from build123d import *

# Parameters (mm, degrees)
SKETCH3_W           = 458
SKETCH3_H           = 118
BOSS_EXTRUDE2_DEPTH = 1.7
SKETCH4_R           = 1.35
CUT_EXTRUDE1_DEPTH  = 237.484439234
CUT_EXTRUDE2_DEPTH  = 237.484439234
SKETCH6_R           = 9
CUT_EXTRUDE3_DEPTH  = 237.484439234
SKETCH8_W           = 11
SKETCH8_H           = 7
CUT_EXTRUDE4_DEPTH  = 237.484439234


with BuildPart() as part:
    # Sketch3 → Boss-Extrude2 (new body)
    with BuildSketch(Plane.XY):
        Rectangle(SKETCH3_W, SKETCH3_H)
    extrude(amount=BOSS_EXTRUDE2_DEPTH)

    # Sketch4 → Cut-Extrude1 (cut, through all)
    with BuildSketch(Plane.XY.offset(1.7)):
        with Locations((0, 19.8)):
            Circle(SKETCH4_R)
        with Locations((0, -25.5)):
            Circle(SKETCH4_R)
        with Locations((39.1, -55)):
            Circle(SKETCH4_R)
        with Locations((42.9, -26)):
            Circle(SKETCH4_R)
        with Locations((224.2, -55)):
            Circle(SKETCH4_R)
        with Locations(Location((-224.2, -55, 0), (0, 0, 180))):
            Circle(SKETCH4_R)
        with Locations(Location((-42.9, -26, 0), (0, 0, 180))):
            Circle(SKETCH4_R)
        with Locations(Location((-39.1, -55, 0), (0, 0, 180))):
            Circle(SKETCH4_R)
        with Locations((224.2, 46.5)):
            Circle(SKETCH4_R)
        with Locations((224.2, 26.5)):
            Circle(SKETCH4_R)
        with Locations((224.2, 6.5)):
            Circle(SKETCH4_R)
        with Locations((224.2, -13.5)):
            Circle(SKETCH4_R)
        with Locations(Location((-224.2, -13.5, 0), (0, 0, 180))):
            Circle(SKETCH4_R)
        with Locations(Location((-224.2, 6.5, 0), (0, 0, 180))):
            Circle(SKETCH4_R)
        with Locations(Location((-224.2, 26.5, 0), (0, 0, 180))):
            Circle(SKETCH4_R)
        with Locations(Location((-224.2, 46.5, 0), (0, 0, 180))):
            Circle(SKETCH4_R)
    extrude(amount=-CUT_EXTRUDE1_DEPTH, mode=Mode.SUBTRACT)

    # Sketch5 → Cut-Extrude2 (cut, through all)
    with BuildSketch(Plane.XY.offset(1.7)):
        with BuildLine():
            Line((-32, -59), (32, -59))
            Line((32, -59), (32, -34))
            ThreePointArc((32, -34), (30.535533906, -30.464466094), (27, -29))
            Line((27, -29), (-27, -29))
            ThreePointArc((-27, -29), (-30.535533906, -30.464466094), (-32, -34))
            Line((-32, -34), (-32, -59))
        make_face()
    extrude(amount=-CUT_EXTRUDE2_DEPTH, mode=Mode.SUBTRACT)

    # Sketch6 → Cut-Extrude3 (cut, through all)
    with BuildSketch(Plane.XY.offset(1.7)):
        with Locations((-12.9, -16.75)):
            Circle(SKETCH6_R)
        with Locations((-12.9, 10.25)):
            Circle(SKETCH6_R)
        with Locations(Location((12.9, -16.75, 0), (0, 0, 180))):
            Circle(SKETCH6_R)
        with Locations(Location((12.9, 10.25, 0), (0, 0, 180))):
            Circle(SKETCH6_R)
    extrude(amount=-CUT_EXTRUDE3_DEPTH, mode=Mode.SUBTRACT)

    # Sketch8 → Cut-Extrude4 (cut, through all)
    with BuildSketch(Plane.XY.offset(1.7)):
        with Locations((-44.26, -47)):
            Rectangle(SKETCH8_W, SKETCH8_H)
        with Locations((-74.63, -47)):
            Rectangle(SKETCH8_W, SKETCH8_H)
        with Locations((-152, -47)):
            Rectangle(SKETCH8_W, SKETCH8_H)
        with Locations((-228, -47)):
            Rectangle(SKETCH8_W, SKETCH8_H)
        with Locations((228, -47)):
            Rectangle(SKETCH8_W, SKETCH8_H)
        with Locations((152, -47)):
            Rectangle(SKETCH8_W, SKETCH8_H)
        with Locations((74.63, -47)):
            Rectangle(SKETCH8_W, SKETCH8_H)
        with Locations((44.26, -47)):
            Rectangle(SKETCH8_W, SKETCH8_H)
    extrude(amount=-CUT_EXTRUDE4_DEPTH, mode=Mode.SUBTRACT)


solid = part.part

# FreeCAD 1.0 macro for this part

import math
import FreeCAD as App
import Part
import Sketcher
Q = App.Units.Quantity

doc = App.newDocument("Part")
params = doc.addObject("Spreadsheet::Sheet", "Params")
for row, (alias, value) in enumerate([
    ("sketch1_width", "458 mm"),
    ("sketch1_height", "118 mm"),
    ("pad1_length", "1.7 mm"),
    ("sketch2_diameter", "2.7 mm"),
    ("sketch3_radius", "5 mm"),
    ("sketch3_width", "64 mm"),
    ("sketch3_height", "25 mm"),
    ("sketch4_diameter", "18 mm"),
    ("sketch5_width", "11 mm"),
    ("sketch5_height", "7 mm"),
], start=1):
    params.set(f"A{row}", alias)
    params.set(f"B{row}", "=" + value)
    params.setAlias(f"B{row}", alias)

body = doc.addObject("PartDesign::Body", "Body")

sketch1 = doc.addObject("Sketcher::SketchObject", "Sketch")
body.addObject(sketch1)
sketch1.AttachmentSupport = (doc.XY_Plane, [""])
sketch1.MapMode = "FlatFace"
sketch1.addGeometry([
    Part.LineSegment(App.Vector(-229, 59, 0), App.Vector(-229, -59, 0)),
    Part.LineSegment(App.Vector(-229, -59, 0), App.Vector(229, -59, 0)),
    Part.LineSegment(App.Vector(229, -59, 0), App.Vector(229, 59, 0)),
    Part.LineSegment(App.Vector(229, 59, 0), App.Vector(-229, 59, 0)),
], False)
sketch1.addConstraint([
    Sketcher.Constraint("Coincident", 0, 2, 1, 1),
    Sketcher.Constraint("Coincident", 1, 2, 2, 1),
    Sketcher.Constraint("Coincident", 2, 2, 3, 1),
    Sketcher.Constraint("Coincident", 3, 2, 0, 1),
    Sketcher.Constraint("Vertical", 0),
    Sketcher.Constraint("Horizontal", 1),
    Sketcher.Constraint("Vertical", 2),
    Sketcher.Constraint("Horizontal", 3),
    Sketcher.Constraint("Symmetric", 0, 2, 2, 2, -1, 1),
    Sketcher.Constraint("DistanceX", 1, 1, 1, 2, Q("458 mm")),
    Sketcher.Constraint("DistanceY", 0, 2, 0, 1, Q("118 mm")),
])
sketch1.setExpression("Constraints[9]", "Params.sketch1_width")
sketch1.setExpression("Constraints[10]", "Params.sketch1_height")
pad1 = doc.addObject("PartDesign::Pad", "Pad")
body.addObject(pad1)
pad1.Profile = sketch1
pad1.setExpression("Length", "Params.pad1_length")

sketch2 = doc.addObject("Sketcher::SketchObject", "Sketch001")
body.addObject(sketch2)
sketch2.AttachmentSupport = (doc.XY_Plane, [""])
sketch2.MapMode = "FlatFace"
sketch2.AttachmentOffset = App.Placement(App.Vector(0, 0, 1.7), App.Rotation())
sketch2.addGeometry([
    Part.Circle(App.Vector(0, 19.8, 0), App.Vector(0, 0, 1), 1.4),
    Part.Circle(App.Vector(0, -25.5, 0), App.Vector(0, 0, 1), 1.4),
    Part.Circle(App.Vector(39.1, -55, 0), App.Vector(0, 0, 1), 1.4),
    Part.Circle(App.Vector(42.9, -26, 0), App.Vector(0, 0, 1), 1.4),
    Part.Circle(App.Vector(224.2, -55, 0), App.Vector(0, 0, 1), 1.4),
    Part.Circle(App.Vector(-224.2, -55, 0), App.Vector(0, 0, 1), 1.4),
    Part.Circle(App.Vector(-42.9, -26, 0), App.Vector(0, 0, 1), 1.4),
    Part.Circle(App.Vector(-39.1, -55, 0), App.Vector(0, 0, 1), 1.4),
    Part.Circle(App.Vector(224.2, 46.5, 0), App.Vector(0, 0, 1), 1.4),
    Part.Circle(App.Vector(224.2, 26.5, 0), App.Vector(0, 0, 1), 1.4),
    Part.Circle(App.Vector(224.2, 6.5, 0), App.Vector(0, 0, 1), 1.4),
    Part.Circle(App.Vector(224.2, -13.5, 0), App.Vector(0, 0, 1), 1.4),
    Part.Circle(App.Vector(-224.2, -13.5, 0), App.Vector(0, 0, 1), 1.4),
    Part.Circle(App.Vector(-224.2, 6.5, 0), App.Vector(0, 0, 1), 1.4),
    Part.Circle(App.Vector(-224.2, 26.5, 0), App.Vector(0, 0, 1), 1.4),
    Part.Circle(App.Vector(-224.2, 46.5, 0), App.Vector(0, 0, 1), 1.4),
], False)
sketch2.addConstraint([
    Sketcher.Constraint("Equal", 0, 1),
    Sketcher.Constraint("Equal", 1, 2),
    Sketcher.Constraint("Equal", 2, 3),
    Sketcher.Constraint("Equal", 3, 4),
    Sketcher.Constraint("Equal", 4, 5),
    Sketcher.Constraint("Equal", 5, 6),
    Sketcher.Constraint("Equal", 6, 7),
    Sketcher.Constraint("Equal", 7, 8),
    Sketcher.Constraint("Equal", 8, 9),
    Sketcher.Constraint("Equal", 9, 10),
    Sketcher.Constraint("Equal", 10, 11),
    Sketcher.Constraint("Equal", 11, 12),
    Sketcher.Constraint("Equal", 12, 13),
    Sketcher.Constraint("Equal", 13, 14),
    Sketcher.Constraint("Equal", 14, 15),
    Sketcher.Constraint("Symmetric", 4, 3, 5, 3, -2),
    Sketcher.Constraint("Symmetric", 3, 3, 6, 3, -2),
    Sketcher.Constraint("Symmetric", 2, 3, 7, 3, -2),
    Sketcher.Constraint("Symmetric", 11, 3, 12, 3, -2),
    Sketcher.Constraint("Symmetric", 10, 3, 13, 3, -2),
    Sketcher.Constraint("Symmetric", 9, 3, 14, 3, -2),
    Sketcher.Constraint("Symmetric", 8, 3, 15, 3, -2),
    Sketcher.Constraint("PointOnObject", 0, 3, -2),
    Sketcher.Constraint("PointOnObject", 1, 3, -2),
    Sketcher.Constraint("Horizontal", 2, 3, 4, 3),
    Sketcher.Constraint("Vertical", 4, 3, 8, 3),
    Sketcher.Constraint("Vertical", 8, 3, 9, 3),
    Sketcher.Constraint("Vertical", 9, 3, 10, 3),
    Sketcher.Constraint("Vertical", 10, 3, 11, 3),
    Sketcher.Constraint("Diameter", 0, Q("2.7 mm")),
    Sketcher.Constraint("DistanceY", 2, 3, -1, 1, Q("55 mm")),
    Sketcher.Constraint("DistanceY", 3, 3, -1, 1, Q("26 mm")),
    Sketcher.Constraint("DistanceX", 6, 3, 2, 3, Q("82 mm")),
    Sketcher.Constraint("DistanceY", 1, 3, 8, 3, Q("72 mm")),
    Sketcher.Constraint("DistanceY", 9, 3, 8, 3, Q("20 mm")),
    Sketcher.Constraint("DistanceY", 10, 3, 9, 3, Q("20 mm")),
    Sketcher.Constraint("DistanceY", 11, 3, 10, 3, Q("20 mm")),
    Sketcher.Constraint("DistanceY", -1, 1, 0, 3, Q("19.8 mm")),
    Sketcher.Constraint("DistanceY", 1, 3, -1, 1, Q("25.5 mm")),
    Sketcher.Constraint("DistanceX", -1, 1, 2, 3, Q("39.1 mm")),
    Sketcher.Constraint("DistanceX", -1, 1, 4, 3, Q("224.2 mm")),
])
sketch2.setExpression("Constraints[29]", "Params.sketch2_diameter")
pocket1 = doc.addObject("PartDesign::Pocket", "Pocket")
body.addObject(pocket1)
pocket1.Profile = sketch2
pocket1.Type = "ThroughAll"

sketch3 = doc.addObject("Sketcher::SketchObject", "Sketch002")
body.addObject(sketch3)
sketch3.AttachmentSupport = (doc.XY_Plane, [""])
sketch3.MapMode = "FlatFace"
sketch3.AttachmentOffset = App.Placement(App.Vector(0, 0, 1.7), App.Rotation())
sketch3.addGeometry([
    Part.LineSegment(App.Vector(-32, -59, 0), App.Vector(32, -59, 0)),
    Part.LineSegment(App.Vector(32, -59, 0), App.Vector(32, -34, 0)),
    Part.ArcOfCircle(Part.Circle(App.Vector(27, -34, 0), App.Vector(0, 0, 1), 5), math.radians(0), math.radians(90)),
    Part.LineSegment(App.Vector(27, -29, 0), App.Vector(-27, -29, 0)),
    Part.ArcOfCircle(Part.Circle(App.Vector(-27, -34, 0), App.Vector(0, 0, 1), 5), math.radians(90), math.radians(180)),
    Part.LineSegment(App.Vector(-32, -34, 0), App.Vector(-32, -59, 0)),
], False)
sketch3.addConstraint([
    Sketcher.Constraint("Coincident", 0, 2, 1, 1),
    Sketcher.Constraint("Tangent", 1, 2, 2, 1),
    Sketcher.Constraint("Tangent", 2, 2, 3, 1),
    Sketcher.Constraint("Tangent", 3, 2, 4, 1),
    Sketcher.Constraint("Tangent", 4, 2, 5, 1),
    Sketcher.Constraint("Coincident", 5, 2, 0, 1),
    Sketcher.Constraint("Horizontal", 0),
    Sketcher.Constraint("Vertical", 1),
    Sketcher.Constraint("Horizontal", 3),
    Sketcher.Constraint("Vertical", 5),
    Sketcher.Constraint("Equal", 2, 4),
    Sketcher.Constraint("Radius", 2, Q("5 mm")),
    Sketcher.Constraint("DistanceX", 0, 1, 0, 2, Q("64 mm")),
    Sketcher.Constraint("DistanceY", 1, 1, 1, 2, Q("25 mm")),
    Sketcher.Constraint("DistanceX", -1, 1, 2, 3, Q("27 mm")),
    Sketcher.Constraint("DistanceY", 2, 3, -1, 1, Q("34 mm")),
])
sketch3.setExpression("Constraints[11]", "Params.sketch3_radius")
sketch3.setExpression("Constraints[12]", "Params.sketch3_width")
sketch3.setExpression("Constraints[13]", "Params.sketch3_height")
pocket2 = doc.addObject("PartDesign::Pocket", "Pocket001")
body.addObject(pocket2)
pocket2.Profile = sketch3
pocket2.Type = "ThroughAll"

sketch4 = doc.addObject("Sketcher::SketchObject", "Sketch003")
body.addObject(sketch4)
sketch4.AttachmentSupport = (doc.XY_Plane, [""])
sketch4.MapMode = "FlatFace"
sketch4.AttachmentOffset = App.Placement(App.Vector(0, 0, 1.7), App.Rotation())
sketch4.addGeometry([
    Part.Circle(App.Vector(-13, -17, 0), App.Vector(0, 0, 1), 9),
    Part.Circle(App.Vector(-13, 10, 0), App.Vector(0, 0, 1), 9),
    Part.Circle(App.Vector(13, -17, 0), App.Vector(0, 0, 1), 9),
    Part.Circle(App.Vector(13, 10, 0), App.Vector(0, 0, 1), 9),
], False)
sketch4.addConstraint([
    Sketcher.Constraint("Equal", 0, 1),
    Sketcher.Constraint("Equal", 1, 2),
    Sketcher.Constraint("Equal", 2, 3),
    Sketcher.Constraint("Symmetric", 0, 3, 2, 3, -2),
    Sketcher.Constraint("Symmetric", 1, 3, 3, 3, -2),
    Sketcher.Constraint("Vertical", 0, 3, 1, 3),
    Sketcher.Constraint("Diameter", 0, Q("18 mm")),
    Sketcher.Constraint("DistanceY", 0, 3, 1, 3, Q("27 mm")),
    Sketcher.Constraint("DistanceX", 0, 3, -1, 1, Q("12.9 mm")),
    Sketcher.Constraint("DistanceY", 0, 3, -1, 1, Q("16.75 mm")),
])
sketch4.setExpression("Constraints[6]", "Params.sketch4_diameter")
pocket3 = doc.addObject("PartDesign::Pocket", "Pocket002")
body.addObject(pocket3)
pocket3.Profile = sketch4
pocket3.Type = "ThroughAll"

sketch5 = doc.addObject("Sketcher::SketchObject", "Sketch004")
body.addObject(sketch5)
sketch5.AttachmentSupport = (doc.XY_Plane, [""])
sketch5.MapMode = "FlatFace"
sketch5.AttachmentOffset = App.Placement(App.Vector(0, 0, 1.7), App.Rotation())
sketch5.addGeometry([
    Part.LineSegment(App.Vector(-50, -44, 0), App.Vector(-50, -50, 0)),
    Part.LineSegment(App.Vector(-50, -50, 0), App.Vector(-39, -50, 0)),
    Part.LineSegment(App.Vector(-39, -50, 0), App.Vector(-39, -44, 0)),
    Part.LineSegment(App.Vector(-39, -44, 0), App.Vector(-50, -44, 0)),
    Part.LineSegment(App.Vector(-80, -44, 0), App.Vector(-80, -50, 0)),
    Part.LineSegment(App.Vector(-80, -50, 0), App.Vector(-69, -50, 0)),
    Part.LineSegment(App.Vector(-69, -50, 0), App.Vector(-69, -44, 0)),
    Part.LineSegment(App.Vector(-69, -44, 0), App.Vector(-80, -44, 0)),
    Part.LineSegment(App.Vector(-158, -44, 0), App.Vector(-158, -50, 0)),
    Part.LineSegment(App.Vector(-158, -50, 0), App.Vector(-146, -50, 0)),
    Part.LineSegment(App.Vector(-146, -50, 0), App.Vector(-146, -44, 0)),
    Part.LineSegment(App.Vector(-146, -44, 0), App.Vector(-158, -44, 0)),
    Part.LineSegment(App.Vector(-234, -44, 0), App.Vector(-234, -50, 0)),
    Part.LineSegment(App.Vector(-234, -50, 0), App.Vector(-222, -50, 0)),
    Part.LineSegment(App.Vector(-222, -50, 0), App.Vector(-222, -44, 0)),
    Part.LineSegment(App.Vector(-222, -44, 0), App.Vector(-234, -44, 0)),
    Part.LineSegment(App.Vector(222, -44, 0), App.Vector(222, -50, 0)),
    Part.LineSegment(App.Vector(222, -50, 0), App.Vector(234, -50, 0)),
    Part.LineSegment(App.Vector(234, -50, 0), App.Vector(234, -44, 0)),
    Part.LineSegment(App.Vector(234, -44, 0), App.Vector(222, -44, 0)),
    Part.LineSegment(App.Vector(146, -44, 0), App.Vector(146, -50, 0)),
    Part.LineSegment(App.Vector(146, -50, 0), App.Vector(158, -50, 0)),
    Part.LineSegment(App.Vector(158, -50, 0), App.Vector(158, -44, 0)),
    Part.LineSegment(App.Vector(158, -44, 0), App.Vector(146, -44, 0)),
    Part.LineSegment(App.Vector(69, -44, 0), App.Vector(69, -50, 0)),
    Part.LineSegment(App.Vector(69, -50, 0), App.Vector(80, -50, 0)),
    Part.LineSegment(App.Vector(80, -50, 0), App.Vector(80, -44, 0)),
    Part.LineSegment(App.Vector(80, -44, 0), App.Vector(69, -44, 0)),
    Part.LineSegment(App.Vector(39, -44, 0), App.Vector(39, -50, 0)),
    Part.LineSegment(App.Vector(39, -50, 0), App.Vector(50, -50, 0)),
    Part.LineSegment(App.Vector(50, -50, 0), App.Vector(50, -44, 0)),
    Part.LineSegment(App.Vector(50, -44, 0), App.Vector(39, -44, 0)),
], False)
sketch5.addConstraint([
    Sketcher.Constraint("Coincident", 0, 2, 1, 1),
    Sketcher.Constraint("Coincident", 1, 2, 2, 1),
    Sketcher.Constraint("Coincident", 2, 2, 3, 1),
    Sketcher.Constraint("Coincident", 3, 2, 0, 1),
    Sketcher.Constraint("Coincident", 4, 2, 5, 1),
    Sketcher.Constraint("Coincident", 5, 2, 6, 1),
    Sketcher.Constraint("Coincident", 6, 2, 7, 1),
    Sketcher.Constraint("Coincident", 7, 2, 4, 1),
    Sketcher.Constraint("Coincident", 8, 2, 9, 1),
    Sketcher.Constraint("Coincident", 9, 2, 10, 1),
    Sketcher.Constraint("Coincident", 10, 2, 11, 1),
    Sketcher.Constraint("Coincident", 11, 2, 8, 1),
    Sketcher.Constraint("Coincident", 12, 2, 13, 1),
    Sketcher.Constraint("Coincident", 13, 2, 14, 1),
    Sketcher.Constraint("Coincident", 14, 2, 15, 1),
    Sketcher.Constraint("Coincident", 15, 2, 12, 1),
    Sketcher.Constraint("Coincident", 16, 2, 17, 1),
    Sketcher.Constraint("Coincident", 17, 2, 18, 1),
    Sketcher.Constraint("Coincident", 18, 2, 19, 1),
    Sketcher.Constraint("Coincident", 19, 2, 16, 1),
    Sketcher.Constraint("Coincident", 20, 2, 21, 1),
    Sketcher.Constraint("Coincident", 21, 2, 22, 1),
    Sketcher.Constraint("Coincident", 22, 2, 23, 1),
    Sketcher.Constraint("Coincident", 23, 2, 20, 1),
    Sketcher.Constraint("Coincident", 24, 2, 25, 1),
    Sketcher.Constraint("Coincident", 25, 2, 26, 1),
    Sketcher.Constraint("Coincident", 26, 2, 27, 1),
    Sketcher.Constraint("Coincident", 27, 2, 24, 1),
    Sketcher.Constraint("Coincident", 28, 2, 29, 1),
    Sketcher.Constraint("Coincident", 29, 2, 30, 1),
    Sketcher.Constraint("Coincident", 30, 2, 31, 1),
    Sketcher.Constraint("Coincident", 31, 2, 28, 1),
    Sketcher.Constraint("Vertical", 0),
    Sketcher.Constraint("Horizontal", 1),
    Sketcher.Constraint("Vertical", 2),
    Sketcher.Constraint("Horizontal", 3),
    Sketcher.Constraint("Vertical", 4),
    Sketcher.Constraint("Horizontal", 5),
    Sketcher.Constraint("Vertical", 6),
    Sketcher.Constraint("Horizontal", 7),
    Sketcher.Constraint("Vertical", 8),
    Sketcher.Constraint("Horizontal", 9),
    Sketcher.Constraint("Vertical", 10),
    Sketcher.Constraint("Horizontal", 11),
    Sketcher.Constraint("Vertical", 12),
    Sketcher.Constraint("Horizontal", 13),
    Sketcher.Constraint("Vertical", 14),
    Sketcher.Constraint("Horizontal", 15),
    Sketcher.Constraint("Vertical", 16),
    Sketcher.Constraint("Horizontal", 17),
    Sketcher.Constraint("Vertical", 18),
    Sketcher.Constraint("Horizontal", 19),
    Sketcher.Constraint("Vertical", 20),
    Sketcher.Constraint("Horizontal", 21),
    Sketcher.Constraint("Vertical", 22),
    Sketcher.Constraint("Horizontal", 23),
    Sketcher.Constraint("Vertical", 24),
    Sketcher.Constraint("Horizontal", 25),
    Sketcher.Constraint("Vertical", 26),
    Sketcher.Constraint("Horizontal", 27),
    Sketcher.Constraint("Vertical", 28),
    Sketcher.Constraint("Horizontal", 29),
    Sketcher.Constraint("Vertical", 30),
    Sketcher.Constraint("Horizontal", 31),
    Sketcher.Constraint("Symmetric", 13, 2, 16, 2, -2),
    Sketcher.Constraint("Symmetric", 15, 2, 18, 2, -2),
    Sketcher.Constraint("Symmetric", 9, 2, 20, 2, -2),
    Sketcher.Constraint("Symmetric", 11, 2, 22, 2, -2),
    Sketcher.Constraint("Symmetric", 5, 2, 24, 2, -2),
    Sketcher.Constraint("Symmetric", 7, 2, 26, 2, -2),
    Sketcher.Constraint("Symmetric", 1, 2, 28, 2, -2),
    Sketcher.Constraint("Symmetric", 3, 2, 30, 2, -2),
    Sketcher.Constraint("Horizontal", 1, 2, 4, 2),
    Sketcher.Constraint("Horizontal", 3, 2, 6, 2),
    Sketcher.Constraint("Horizontal", 5, 2, 8, 2),
    Sketcher.Constraint("Horizontal", 7, 2, 10, 2),
    Sketcher.Constraint("Horizontal", 9, 2, 12, 2),
    Sketcher.Constraint("Horizontal", 11, 2, 14, 2),
    Sketcher.Constraint("Equal", 3, 5),
    Sketcher.Constraint("Equal", 7, 9),
    Sketcher.Constraint("Equal", 11, 13),
    Sketcher.Constraint("DistanceX", 1, 1, 1, 2, Q("11 mm")),
    Sketcher.Constraint("DistanceY", 0, 2, 0, 1, Q("7 mm")),
    Sketcher.Constraint("DistanceX", 12, 2, 8, 2, Q("76 mm")),
    Sketcher.Constraint("DistanceY", 0, 2, -1, 1, Q("50.5 mm")),
    Sketcher.Constraint("DistanceX", 8, 2, -1, 1, Q("157.5 mm")),
    Sketcher.Constraint("DistanceX", 0, 2, -1, 1, Q("49.76 mm")),
    Sketcher.Constraint("DistanceX", 4, 2, -1, 1, Q("80.13 mm")),
])
sketch5.setExpression("Constraints[81]", "Params.sketch5_width")
sketch5.setExpression("Constraints[82]", "Params.sketch5_height")
pocket4 = doc.addObject("PartDesign::Pocket", "Pocket003")
body.addObject(pocket4)
pocket4.Profile = sketch5
pocket4.Type = "ThroughAll"

doc.recompute()
